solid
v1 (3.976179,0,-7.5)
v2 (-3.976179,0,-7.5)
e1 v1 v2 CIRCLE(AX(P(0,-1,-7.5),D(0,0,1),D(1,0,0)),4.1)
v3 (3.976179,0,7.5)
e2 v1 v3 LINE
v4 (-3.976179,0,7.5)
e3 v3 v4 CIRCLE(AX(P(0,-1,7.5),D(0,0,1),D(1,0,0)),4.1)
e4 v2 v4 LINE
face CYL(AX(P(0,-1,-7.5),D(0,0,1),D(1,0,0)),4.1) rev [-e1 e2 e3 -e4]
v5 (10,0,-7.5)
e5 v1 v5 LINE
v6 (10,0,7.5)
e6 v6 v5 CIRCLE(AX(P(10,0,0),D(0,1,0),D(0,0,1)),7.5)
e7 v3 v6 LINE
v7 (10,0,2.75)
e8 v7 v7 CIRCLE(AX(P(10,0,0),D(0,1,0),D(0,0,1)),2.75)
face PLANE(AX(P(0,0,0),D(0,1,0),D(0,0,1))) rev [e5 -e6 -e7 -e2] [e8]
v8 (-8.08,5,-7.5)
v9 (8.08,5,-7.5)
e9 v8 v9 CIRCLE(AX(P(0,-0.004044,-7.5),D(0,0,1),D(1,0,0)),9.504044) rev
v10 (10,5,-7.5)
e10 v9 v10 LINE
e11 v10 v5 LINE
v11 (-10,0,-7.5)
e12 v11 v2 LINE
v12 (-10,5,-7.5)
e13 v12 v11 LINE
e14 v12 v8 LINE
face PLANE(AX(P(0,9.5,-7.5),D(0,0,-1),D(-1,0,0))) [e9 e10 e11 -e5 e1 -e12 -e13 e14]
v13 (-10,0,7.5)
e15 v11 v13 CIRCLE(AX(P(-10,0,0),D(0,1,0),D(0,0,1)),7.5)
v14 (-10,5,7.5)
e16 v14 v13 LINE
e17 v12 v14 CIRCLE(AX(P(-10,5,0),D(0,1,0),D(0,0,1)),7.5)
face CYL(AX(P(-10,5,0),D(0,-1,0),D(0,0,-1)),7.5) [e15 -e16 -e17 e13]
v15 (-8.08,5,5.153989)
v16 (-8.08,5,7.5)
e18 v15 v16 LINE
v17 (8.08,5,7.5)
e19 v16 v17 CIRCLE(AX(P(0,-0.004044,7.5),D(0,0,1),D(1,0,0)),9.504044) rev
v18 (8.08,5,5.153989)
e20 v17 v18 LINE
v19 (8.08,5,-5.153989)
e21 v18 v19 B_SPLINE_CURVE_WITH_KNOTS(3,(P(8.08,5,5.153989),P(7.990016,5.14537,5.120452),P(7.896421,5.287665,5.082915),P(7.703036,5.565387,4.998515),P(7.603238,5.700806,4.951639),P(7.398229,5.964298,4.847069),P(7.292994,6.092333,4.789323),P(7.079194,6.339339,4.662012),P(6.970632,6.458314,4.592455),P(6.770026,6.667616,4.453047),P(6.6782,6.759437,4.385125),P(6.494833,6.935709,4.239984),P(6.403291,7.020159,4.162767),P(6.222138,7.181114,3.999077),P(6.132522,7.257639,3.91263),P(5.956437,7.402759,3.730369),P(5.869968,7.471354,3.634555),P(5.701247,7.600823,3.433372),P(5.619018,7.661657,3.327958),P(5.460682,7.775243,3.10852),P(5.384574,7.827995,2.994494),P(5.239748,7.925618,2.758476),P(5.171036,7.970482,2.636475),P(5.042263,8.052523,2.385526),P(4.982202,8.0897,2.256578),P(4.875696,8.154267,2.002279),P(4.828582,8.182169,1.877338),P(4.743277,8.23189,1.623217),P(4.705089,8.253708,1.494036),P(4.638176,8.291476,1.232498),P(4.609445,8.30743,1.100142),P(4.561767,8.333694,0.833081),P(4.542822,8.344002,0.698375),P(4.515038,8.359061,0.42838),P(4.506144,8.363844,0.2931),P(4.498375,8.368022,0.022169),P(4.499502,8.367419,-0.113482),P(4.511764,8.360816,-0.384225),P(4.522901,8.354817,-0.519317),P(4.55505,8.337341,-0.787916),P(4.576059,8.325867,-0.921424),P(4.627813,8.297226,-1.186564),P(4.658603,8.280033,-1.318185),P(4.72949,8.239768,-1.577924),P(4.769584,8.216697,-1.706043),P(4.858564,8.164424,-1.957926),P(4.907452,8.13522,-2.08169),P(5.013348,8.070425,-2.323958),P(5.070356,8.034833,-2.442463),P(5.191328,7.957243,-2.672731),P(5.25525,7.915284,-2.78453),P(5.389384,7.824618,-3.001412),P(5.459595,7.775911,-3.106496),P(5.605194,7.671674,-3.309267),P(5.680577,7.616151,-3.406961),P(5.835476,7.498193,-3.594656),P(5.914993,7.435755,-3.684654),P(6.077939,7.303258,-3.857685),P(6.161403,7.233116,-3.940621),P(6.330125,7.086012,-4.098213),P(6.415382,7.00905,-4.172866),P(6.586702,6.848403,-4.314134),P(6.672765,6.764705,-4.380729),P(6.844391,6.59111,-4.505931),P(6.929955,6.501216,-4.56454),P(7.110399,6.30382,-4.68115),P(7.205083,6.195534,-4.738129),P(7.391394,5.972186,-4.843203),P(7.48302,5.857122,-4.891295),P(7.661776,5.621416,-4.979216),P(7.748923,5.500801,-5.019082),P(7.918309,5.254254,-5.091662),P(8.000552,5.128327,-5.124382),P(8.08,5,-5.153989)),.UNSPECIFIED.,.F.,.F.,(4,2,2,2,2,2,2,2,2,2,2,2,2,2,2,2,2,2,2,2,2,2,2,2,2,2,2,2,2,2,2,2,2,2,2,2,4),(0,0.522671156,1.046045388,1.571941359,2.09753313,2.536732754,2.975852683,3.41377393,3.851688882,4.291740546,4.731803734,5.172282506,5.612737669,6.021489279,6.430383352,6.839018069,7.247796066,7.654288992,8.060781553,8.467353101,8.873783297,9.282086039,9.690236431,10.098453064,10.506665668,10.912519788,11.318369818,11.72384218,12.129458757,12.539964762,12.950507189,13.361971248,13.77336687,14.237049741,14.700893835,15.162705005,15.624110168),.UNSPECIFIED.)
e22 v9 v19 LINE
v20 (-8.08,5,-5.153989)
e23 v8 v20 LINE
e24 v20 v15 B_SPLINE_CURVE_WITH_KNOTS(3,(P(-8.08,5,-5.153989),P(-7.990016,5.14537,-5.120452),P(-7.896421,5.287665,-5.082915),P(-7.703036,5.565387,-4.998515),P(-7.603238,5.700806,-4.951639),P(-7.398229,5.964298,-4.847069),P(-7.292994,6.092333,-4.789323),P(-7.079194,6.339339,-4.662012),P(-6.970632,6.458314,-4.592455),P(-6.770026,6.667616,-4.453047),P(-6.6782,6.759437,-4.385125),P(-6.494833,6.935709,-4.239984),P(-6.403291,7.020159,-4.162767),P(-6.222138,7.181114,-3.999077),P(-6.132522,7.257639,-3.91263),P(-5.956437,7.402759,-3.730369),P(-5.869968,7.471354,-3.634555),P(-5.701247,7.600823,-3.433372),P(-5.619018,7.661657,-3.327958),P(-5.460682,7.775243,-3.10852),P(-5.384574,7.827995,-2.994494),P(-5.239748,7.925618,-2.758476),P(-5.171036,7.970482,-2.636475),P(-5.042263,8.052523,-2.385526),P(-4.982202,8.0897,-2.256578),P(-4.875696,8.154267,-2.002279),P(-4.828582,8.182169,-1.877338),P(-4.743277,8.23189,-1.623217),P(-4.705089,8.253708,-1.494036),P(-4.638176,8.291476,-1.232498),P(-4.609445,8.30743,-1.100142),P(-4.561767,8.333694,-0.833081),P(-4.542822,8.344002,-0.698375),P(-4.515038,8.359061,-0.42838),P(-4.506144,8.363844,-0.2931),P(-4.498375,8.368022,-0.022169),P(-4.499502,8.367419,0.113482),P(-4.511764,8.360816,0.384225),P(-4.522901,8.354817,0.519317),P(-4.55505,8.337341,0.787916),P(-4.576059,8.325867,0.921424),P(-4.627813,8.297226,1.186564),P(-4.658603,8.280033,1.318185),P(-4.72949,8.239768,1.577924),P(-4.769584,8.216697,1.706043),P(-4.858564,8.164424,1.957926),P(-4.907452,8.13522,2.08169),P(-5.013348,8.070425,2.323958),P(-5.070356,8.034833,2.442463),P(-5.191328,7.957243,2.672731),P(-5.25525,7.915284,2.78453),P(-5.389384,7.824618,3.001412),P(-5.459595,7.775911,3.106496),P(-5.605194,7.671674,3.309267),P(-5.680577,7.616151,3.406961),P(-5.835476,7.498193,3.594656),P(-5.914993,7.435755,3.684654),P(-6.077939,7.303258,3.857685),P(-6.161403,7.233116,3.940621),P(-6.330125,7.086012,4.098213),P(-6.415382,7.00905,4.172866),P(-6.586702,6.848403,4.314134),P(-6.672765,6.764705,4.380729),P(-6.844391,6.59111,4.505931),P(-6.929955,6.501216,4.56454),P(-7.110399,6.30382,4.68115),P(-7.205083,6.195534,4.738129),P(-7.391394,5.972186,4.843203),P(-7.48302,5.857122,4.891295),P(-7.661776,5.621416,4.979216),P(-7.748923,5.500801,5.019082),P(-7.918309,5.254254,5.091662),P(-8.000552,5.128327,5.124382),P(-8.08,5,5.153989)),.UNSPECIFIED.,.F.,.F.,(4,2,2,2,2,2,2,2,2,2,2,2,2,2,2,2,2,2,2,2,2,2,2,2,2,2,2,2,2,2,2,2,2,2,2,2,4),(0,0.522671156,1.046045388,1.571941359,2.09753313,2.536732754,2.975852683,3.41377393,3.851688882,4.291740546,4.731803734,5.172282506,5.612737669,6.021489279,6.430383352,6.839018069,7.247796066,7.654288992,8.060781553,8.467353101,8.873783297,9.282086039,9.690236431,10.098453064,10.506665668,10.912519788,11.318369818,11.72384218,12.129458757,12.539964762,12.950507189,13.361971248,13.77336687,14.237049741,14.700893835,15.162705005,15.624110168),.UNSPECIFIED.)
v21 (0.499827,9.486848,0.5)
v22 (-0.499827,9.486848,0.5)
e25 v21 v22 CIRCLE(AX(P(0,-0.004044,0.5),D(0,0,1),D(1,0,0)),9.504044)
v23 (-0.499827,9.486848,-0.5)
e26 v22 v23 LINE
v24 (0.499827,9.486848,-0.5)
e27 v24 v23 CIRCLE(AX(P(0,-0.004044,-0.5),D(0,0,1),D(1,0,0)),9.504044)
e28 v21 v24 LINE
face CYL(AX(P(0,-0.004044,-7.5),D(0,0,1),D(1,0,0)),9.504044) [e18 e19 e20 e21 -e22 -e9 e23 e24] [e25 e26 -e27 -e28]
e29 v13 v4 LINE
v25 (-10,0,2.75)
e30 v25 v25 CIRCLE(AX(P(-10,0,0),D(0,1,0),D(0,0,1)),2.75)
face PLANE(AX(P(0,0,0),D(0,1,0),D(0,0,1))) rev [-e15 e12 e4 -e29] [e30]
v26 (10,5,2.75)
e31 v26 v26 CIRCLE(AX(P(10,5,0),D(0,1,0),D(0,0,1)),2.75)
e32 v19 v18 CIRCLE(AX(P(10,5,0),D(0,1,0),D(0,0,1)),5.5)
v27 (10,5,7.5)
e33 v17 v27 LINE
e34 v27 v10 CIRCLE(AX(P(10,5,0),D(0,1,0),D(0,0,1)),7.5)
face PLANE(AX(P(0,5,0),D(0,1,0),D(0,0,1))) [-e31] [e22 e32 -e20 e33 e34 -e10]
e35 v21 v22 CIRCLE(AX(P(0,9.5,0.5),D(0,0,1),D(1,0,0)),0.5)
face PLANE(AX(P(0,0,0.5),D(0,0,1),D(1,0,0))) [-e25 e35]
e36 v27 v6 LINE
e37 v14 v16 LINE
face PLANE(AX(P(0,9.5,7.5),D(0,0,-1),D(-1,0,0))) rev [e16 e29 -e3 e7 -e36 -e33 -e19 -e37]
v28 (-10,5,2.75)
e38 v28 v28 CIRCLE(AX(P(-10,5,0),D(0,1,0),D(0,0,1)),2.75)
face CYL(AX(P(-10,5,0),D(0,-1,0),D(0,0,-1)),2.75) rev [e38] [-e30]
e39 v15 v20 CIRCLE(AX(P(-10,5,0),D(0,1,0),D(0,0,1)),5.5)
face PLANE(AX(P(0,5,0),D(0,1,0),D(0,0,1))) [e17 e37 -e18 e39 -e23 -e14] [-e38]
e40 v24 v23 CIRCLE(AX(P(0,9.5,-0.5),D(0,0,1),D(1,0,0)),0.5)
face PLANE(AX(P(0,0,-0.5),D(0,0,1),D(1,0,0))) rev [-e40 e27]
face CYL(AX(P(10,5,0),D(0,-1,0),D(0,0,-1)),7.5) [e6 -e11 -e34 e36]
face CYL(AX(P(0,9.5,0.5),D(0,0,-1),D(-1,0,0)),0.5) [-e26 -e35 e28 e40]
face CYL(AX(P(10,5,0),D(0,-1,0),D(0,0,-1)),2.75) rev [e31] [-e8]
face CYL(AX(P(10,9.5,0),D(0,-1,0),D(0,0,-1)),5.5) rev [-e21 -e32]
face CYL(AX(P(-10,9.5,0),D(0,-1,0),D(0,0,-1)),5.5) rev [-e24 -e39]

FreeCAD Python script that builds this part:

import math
import FreeCAD as App
import Part
import Sketcher
Q = App.Units.Quantity

doc = App.newDocument("Part")
body = doc.addObject("PartDesign::Body", "Body")

# Sketch on XZ plane
sketch1 = body.newObject("Sketcher::SketchObject", "Sketch")
sketch1.AttachmentSupport = (doc.getObject("XZ_Plane"), [""])
sketch1.MapMode = "FlatFace"
sketch1.addGeometry([
    Part.LineSegment(App.Vector(8.1, -7.5, 0), App.Vector(-8.1, -7.5, 0)),  # 0
    Part.LineSegment(App.Vector(-8.1, -7.5, 0), App.Vector(-8.1, -5.2, 0)),  # 1
    Part.ArcOfCircle(Part.Circle(App.Vector(-10, 0, 0), App.Vector(0, 0, 1), 5.5), math.radians(-70), math.radians(70)),  # 2
    Part.LineSegment(App.Vector(-8.1, 5.2, 0), App.Vector(-8.1, 7.5, 0)),  # 3
    Part.LineSegment(App.Vector(-8.1, 7.5, 0), App.Vector(8.1, 7.5, 0)),  # 4
    Part.LineSegment(App.Vector(8.1, 7.5, 0), App.Vector(8.1, 5.2, 0)),  # 5
    Part.ArcOfCircle(Part.Circle(App.Vector(10, 0, 0), App.Vector(0, 0, 1), 5.5), math.radians(110), math.radians(250)),  # 6
    Part.LineSegment(App.Vector(8.1, -5.2, 0), App.Vector(8.1, -7.5, 0)),  # 7
], False)
sketch1.addConstraint([
    Sketcher.Constraint("Coincident", 0, 2, 1, 1),
    Sketcher.Constraint("Coincident", 1, 2, 2, 1),
    Sketcher.Constraint("Coincident", 2, 2, 3, 1),
    Sketcher.Constraint("Coincident", 3, 2, 4, 1),
    Sketcher.Constraint("Coincident", 4, 2, 5, 1),
    Sketcher.Constraint("Coincident", 5, 2, 6, 1),
    Sketcher.Constraint("Coincident", 6, 2, 7, 1),
    Sketcher.Constraint("Coincident", 7, 2, 0, 1),
    Sketcher.Constraint("Horizontal", 0),
    Sketcher.Constraint("Vertical", 1),
    Sketcher.Constraint("Vertical", 3),
    Sketcher.Constraint("Horizontal", 4),
    Sketcher.Constraint("Vertical", 5),
    Sketcher.Constraint("Vertical", 7),
    Sketcher.Constraint("Equal", 2, 6),
    Sketcher.Constraint("Symmetric", 2, 3, 6, 3, -1, 1),
    Sketcher.Constraint("Symmetric", 0, 2, 4, 2, -1, 1),
    Sketcher.Constraint("Symmetric", 2, 2, 5, 2, -2),
    Sketcher.Constraint("Horizontal", 1, 2, 6, 2),
    Sketcher.Constraint("Radius", 2, Q("5.5 mm")),
    Sketcher.Constraint("DistanceX", 2, 3, -1, 1, Q("10 mm")),
    Sketcher.Constraint("DistanceY", 0, 2, 3, 2, Q("15 mm")),
    Sketcher.Constraint("DistanceX", 0, 2, 0, 1, Q("16.16 mm")),
])
pad1 = body.newObject("PartDesign::Pad", "Pad")
pad1.Profile = sketch1
pad1.Length = 9.5
pad1.Reversed = True

# Sketch on XZ plane
sketch2 = body.newObject("Sketcher::SketchObject", "Sketch001")
sketch2.AttachmentSupport = (doc.getObject("XZ_Plane"), [""])
sketch2.MapMode = "FlatFace"
sketch2.addGeometry([
    Part.LineSegment(App.Vector(-8.1, -5.2, 0), App.Vector(-8.1, -7.5, 0)),  # 0
    Part.LineSegment(App.Vector(-8.1, -7.5, 0), App.Vector(-10, -7.5, 0)),  # 1
    Part.ArcOfCircle(Part.Circle(App.Vector(-10, 0, 0), App.Vector(0, 0, 1), 7.5), math.radians(90), math.radians(270)),  # 2
    Part.LineSegment(App.Vector(-10, 7.5, 0), App.Vector(-8.1, 7.5, 0)),  # 3
    Part.LineSegment(App.Vector(-8.1, 7.5, 0), App.Vector(-8.1, 5.2, 0)),  # 4
    Part.ArcOfCircle(Part.Circle(App.Vector(-10, 0, 0), App.Vector(0, 0, 1), 5.5), math.radians(-70), math.radians(70)),  # 5
    Part.Circle(App.Vector(-10, 0, 0), App.Vector(0, 0, 1), 2.8),  # 6
    Part.LineSegment(App.Vector(10, -7.5, 0), App.Vector(8.1, -7.5, 0)),  # 7
    Part.LineSegment(App.Vector(8.1, -7.5, 0), App.Vector(8.1, -5.2, 0)),  # 8
    Part.ArcOfCircle(Part.Circle(App.Vector(10, 0, 0), App.Vector(0, 0, 1), 5.5), math.radians(110), math.radians(250)),  # 9
    Part.LineSegment(App.Vector(8.1, 5.2, 0), App.Vector(8.1, 7.5, 0)),  # 10
    Part.LineSegment(App.Vector(8.1, 7.5, 0), App.Vector(10, 7.5, 0)),  # 11
    Part.ArcOfCircle(Part.Circle(App.Vector(10, 0, 0), App.Vector(0, 0, 1), 7.5), math.radians(-90), math.radians(90)),  # 12
    Part.Circle(App.Vector(10, 0, 0), App.Vector(0, 0, 1), 2.8),  # 13
], False)
sketch2.addConstraint([
    Sketcher.Constraint("Coincident", 0, 2, 1, 1),
    Sketcher.Constraint("Tangent", 1, 2, 2, 2),
    Sketcher.Constraint("Tangent", 2, 1, 3, 1),
    Sketcher.Constraint("Coincident", 3, 2, 4, 1),
    Sketcher.Constraint("Coincident", 4, 2, 5, 2),
    Sketcher.Constraint("Coincident", 5, 1, 0, 1),
    Sketcher.Constraint("Coincident", 7, 2, 8, 1),
    Sketcher.Constraint("Coincident", 8, 2, 9, 2),
    Sketcher.Constraint("Coincident", 9, 1, 10, 1),
    Sketcher.Constraint("Coincident", 10, 2, 11, 1),
    Sketcher.Constraint("Tangent", 11, 2, 12, 2),
    Sketcher.Constraint("Tangent", 12, 1, 7, 1),
    Sketcher.Constraint("Vertical", 0),
    Sketcher.Constraint("Horizontal", 1),
    Sketcher.Constraint("Horizontal", 3),
    Sketcher.Constraint("Vertical", 4),
    Sketcher.Constraint("Horizontal", 7),
    Sketcher.Constraint("Vertical", 8),
    Sketcher.Constraint("Vertical", 10),
    Sketcher.Constraint("Horizontal", 11),
    Sketcher.Constraint("Coincident", 5, 3, 2, 3),
    Sketcher.Constraint("Coincident", 6, 3, 2, 3),
    Sketcher.Constraint("Coincident", 12, 3, 9, 3),
    Sketcher.Constraint("Coincident", 13, 3, 9, 3),
    Sketcher.Constraint("Equal", 5, 9),
    Sketcher.Constraint("Equal", 2, 12),
    Sketcher.Constraint("Equal", 6, 13),
    Sketcher.Constraint("Symmetric", 2, 3, 9, 3, -1, 1),
    Sketcher.Constraint("Symmetric", 0, 2, 7, 2, -2),
    Sketcher.Constraint("Horizontal", 4, 2, 9, 1),
    Sketcher.Constraint("Vertical", 0, 2, 3, 2),
    Sketcher.Constraint("Diameter", 6, Q("5.5 mm")),
    Sketcher.Constraint("Radius", 2, Q("7.5 mm")),
    Sketcher.Constraint("Radius", 5, Q("5.5 mm")),
    Sketcher.Constraint("DistanceX", 2, 3, -1, 1, Q("10 mm")),
    Sketcher.Constraint("DistanceX", 1, 2, 1, 1, Q("1.92 mm")),
])
pad2 = body.newObject("PartDesign::Pad", "Pad001")
pad2.Profile = sketch2
pad2.Length = 5
pad2.Reversed = True

# Sketch on XY plane
sketch3 = body.newObject("Sketcher::SketchObject", "Sketch002")
sketch3.AttachmentSupport = (doc.getObject("XY_Plane"), [""])
sketch3.MapMode = "FlatFace"
sketch3.AttachmentOffset = App.Placement(App.Vector(0, 0, 7.5), App.Rotation())
sketch3.addGeometry([
    Part.LineSegment(App.Vector(0, 9.5, 0), App.Vector(-8.1, 9.5, 0)),  # 0
    Part.LineSegment(App.Vector(-8.1, 9.5, 0), App.Vector(-8.1, 5, 0)),  # 1
    Part.ArcOfCircle(Part.Circle(App.Vector(0, 0, 0), App.Vector(0, 0, 1), 9.5), math.radians(90), math.radians(148)),  # 2
    Part.LineSegment(App.Vector(8.1, 9.5, 0), App.Vector(0, 9.5, 0)),  # 3
    Part.ArcOfCircle(Part.Circle(App.Vector(0, 0, 0), App.Vector(0, 0, 1), 9.5), math.radians(32), math.radians(90)),  # 4
    Part.LineSegment(App.Vector(8.1, 5, 0), App.Vector(8.1, 9.5, 0)),  # 5
    Part.ArcOfCircle(Part.Circle(App.Vector(0, -1, 0), App.Vector(0, 0, 1), 4.1), math.radians(166), math.radians(360)),  # 6
    Part.ArcOfCircle(Part.Circle(App.Vector(0, -1, 0), App.Vector(0, 0, 1), 4.1), math.radians(0), math.radians(14.12)),  # 7
    Part.ArcOfCircle(Part.Circle(App.Vector(0, -1, 0), App.Vector(0, 0, 1), 4.1), math.radians(14), math.radians(166)),  # 8
], False)
sketch3.addConstraint([
    Sketcher.Constraint("Coincident", 0, 2, 1, 1),
    Sketcher.Constraint("Coincident", 1, 2, 2, 2),
    Sketcher.Constraint("Tangent", 2, 1, 0, 1),
    Sketcher.Constraint("Tangent", 3, 2, 4, 2),
    Sketcher.Constraint("Coincident", 4, 1, 5, 1),
    Sketcher.Constraint("Coincident", 5, 2, 3, 1),
    Sketcher.Constraint("Tangent", 6, 2, 7, 1),
    Sketcher.Constraint("Tangent", 7, 2, 8, 1),
    Sketcher.Constraint("Tangent", 8, 2, 6, 1),
    Sketcher.Constraint("Horizontal", 0),
    Sketcher.Constraint("Vertical", 1),
    Sketcher.Constraint("Horizontal", 3),
    Sketcher.Constraint("Vertical", 5),
    Sketcher.Constraint("Coincident", 4, 3, 2, 3),
    Sketcher.Constraint("Equal", 2, 4),
    Sketcher.Constraint("Symmetric", 7, 2, 8, 2, -1, 1),
    Sketcher.Constraint("Symmetric", 1, 2, 4, 1, -2),
    Sketcher.Constraint("PointOnObject", 6, 3, -2),
    Sketcher.Constraint("Horizontal", 8, 3, 6, 2),
    Sketcher.Constraint("Radius", 6, Q("4.1 mm")),
    Sketcher.Constraint("DistanceY", 1, 2, 1, 1, Q("4.5 mm")),
    Sketcher.Constraint("DistanceY", 6, 3, -1, 1, Q("1 mm")),
    Sketcher.Constraint("DistanceY", -1, 1, 1, 2, Q("5 mm")),
    Sketcher.Constraint("DistanceX", 0, 2, 0, 1, Q("8.08 mm")),
])
pocket1 = body.newObject("PartDesign::Pocket", "Pocket")
pocket1.Profile = sketch3
pocket1.Type = "ThroughAll"

# Sketch on XY plane
sketch4 = body.newObject("Sketcher::SketchObject", "Sketch003")
sketch4.AttachmentSupport = (doc.getObject("XY_Plane"), [""])
sketch4.MapMode = "FlatFace"
sketch4.addGeometry(Part.Circle(App.Vector(0, 9.5, 0), App.Vector(0, 0, 1), 0.5), False)
sketch4.addConstraint([
    Sketcher.Constraint("PointOnObject", 0, 3, -2),
    Sketcher.Constraint("Diameter", 0, Q("1 mm")),
    Sketcher.Constraint("DistanceY", -1, 1, 0, 3, Q("9.5 mm")),
])
pad3 = body.newObject("PartDesign::Pad", "Pad002")
pad3.Profile = sketch4
pad3.Length = 1
pad3.Midplane = True

doc.recompute()
